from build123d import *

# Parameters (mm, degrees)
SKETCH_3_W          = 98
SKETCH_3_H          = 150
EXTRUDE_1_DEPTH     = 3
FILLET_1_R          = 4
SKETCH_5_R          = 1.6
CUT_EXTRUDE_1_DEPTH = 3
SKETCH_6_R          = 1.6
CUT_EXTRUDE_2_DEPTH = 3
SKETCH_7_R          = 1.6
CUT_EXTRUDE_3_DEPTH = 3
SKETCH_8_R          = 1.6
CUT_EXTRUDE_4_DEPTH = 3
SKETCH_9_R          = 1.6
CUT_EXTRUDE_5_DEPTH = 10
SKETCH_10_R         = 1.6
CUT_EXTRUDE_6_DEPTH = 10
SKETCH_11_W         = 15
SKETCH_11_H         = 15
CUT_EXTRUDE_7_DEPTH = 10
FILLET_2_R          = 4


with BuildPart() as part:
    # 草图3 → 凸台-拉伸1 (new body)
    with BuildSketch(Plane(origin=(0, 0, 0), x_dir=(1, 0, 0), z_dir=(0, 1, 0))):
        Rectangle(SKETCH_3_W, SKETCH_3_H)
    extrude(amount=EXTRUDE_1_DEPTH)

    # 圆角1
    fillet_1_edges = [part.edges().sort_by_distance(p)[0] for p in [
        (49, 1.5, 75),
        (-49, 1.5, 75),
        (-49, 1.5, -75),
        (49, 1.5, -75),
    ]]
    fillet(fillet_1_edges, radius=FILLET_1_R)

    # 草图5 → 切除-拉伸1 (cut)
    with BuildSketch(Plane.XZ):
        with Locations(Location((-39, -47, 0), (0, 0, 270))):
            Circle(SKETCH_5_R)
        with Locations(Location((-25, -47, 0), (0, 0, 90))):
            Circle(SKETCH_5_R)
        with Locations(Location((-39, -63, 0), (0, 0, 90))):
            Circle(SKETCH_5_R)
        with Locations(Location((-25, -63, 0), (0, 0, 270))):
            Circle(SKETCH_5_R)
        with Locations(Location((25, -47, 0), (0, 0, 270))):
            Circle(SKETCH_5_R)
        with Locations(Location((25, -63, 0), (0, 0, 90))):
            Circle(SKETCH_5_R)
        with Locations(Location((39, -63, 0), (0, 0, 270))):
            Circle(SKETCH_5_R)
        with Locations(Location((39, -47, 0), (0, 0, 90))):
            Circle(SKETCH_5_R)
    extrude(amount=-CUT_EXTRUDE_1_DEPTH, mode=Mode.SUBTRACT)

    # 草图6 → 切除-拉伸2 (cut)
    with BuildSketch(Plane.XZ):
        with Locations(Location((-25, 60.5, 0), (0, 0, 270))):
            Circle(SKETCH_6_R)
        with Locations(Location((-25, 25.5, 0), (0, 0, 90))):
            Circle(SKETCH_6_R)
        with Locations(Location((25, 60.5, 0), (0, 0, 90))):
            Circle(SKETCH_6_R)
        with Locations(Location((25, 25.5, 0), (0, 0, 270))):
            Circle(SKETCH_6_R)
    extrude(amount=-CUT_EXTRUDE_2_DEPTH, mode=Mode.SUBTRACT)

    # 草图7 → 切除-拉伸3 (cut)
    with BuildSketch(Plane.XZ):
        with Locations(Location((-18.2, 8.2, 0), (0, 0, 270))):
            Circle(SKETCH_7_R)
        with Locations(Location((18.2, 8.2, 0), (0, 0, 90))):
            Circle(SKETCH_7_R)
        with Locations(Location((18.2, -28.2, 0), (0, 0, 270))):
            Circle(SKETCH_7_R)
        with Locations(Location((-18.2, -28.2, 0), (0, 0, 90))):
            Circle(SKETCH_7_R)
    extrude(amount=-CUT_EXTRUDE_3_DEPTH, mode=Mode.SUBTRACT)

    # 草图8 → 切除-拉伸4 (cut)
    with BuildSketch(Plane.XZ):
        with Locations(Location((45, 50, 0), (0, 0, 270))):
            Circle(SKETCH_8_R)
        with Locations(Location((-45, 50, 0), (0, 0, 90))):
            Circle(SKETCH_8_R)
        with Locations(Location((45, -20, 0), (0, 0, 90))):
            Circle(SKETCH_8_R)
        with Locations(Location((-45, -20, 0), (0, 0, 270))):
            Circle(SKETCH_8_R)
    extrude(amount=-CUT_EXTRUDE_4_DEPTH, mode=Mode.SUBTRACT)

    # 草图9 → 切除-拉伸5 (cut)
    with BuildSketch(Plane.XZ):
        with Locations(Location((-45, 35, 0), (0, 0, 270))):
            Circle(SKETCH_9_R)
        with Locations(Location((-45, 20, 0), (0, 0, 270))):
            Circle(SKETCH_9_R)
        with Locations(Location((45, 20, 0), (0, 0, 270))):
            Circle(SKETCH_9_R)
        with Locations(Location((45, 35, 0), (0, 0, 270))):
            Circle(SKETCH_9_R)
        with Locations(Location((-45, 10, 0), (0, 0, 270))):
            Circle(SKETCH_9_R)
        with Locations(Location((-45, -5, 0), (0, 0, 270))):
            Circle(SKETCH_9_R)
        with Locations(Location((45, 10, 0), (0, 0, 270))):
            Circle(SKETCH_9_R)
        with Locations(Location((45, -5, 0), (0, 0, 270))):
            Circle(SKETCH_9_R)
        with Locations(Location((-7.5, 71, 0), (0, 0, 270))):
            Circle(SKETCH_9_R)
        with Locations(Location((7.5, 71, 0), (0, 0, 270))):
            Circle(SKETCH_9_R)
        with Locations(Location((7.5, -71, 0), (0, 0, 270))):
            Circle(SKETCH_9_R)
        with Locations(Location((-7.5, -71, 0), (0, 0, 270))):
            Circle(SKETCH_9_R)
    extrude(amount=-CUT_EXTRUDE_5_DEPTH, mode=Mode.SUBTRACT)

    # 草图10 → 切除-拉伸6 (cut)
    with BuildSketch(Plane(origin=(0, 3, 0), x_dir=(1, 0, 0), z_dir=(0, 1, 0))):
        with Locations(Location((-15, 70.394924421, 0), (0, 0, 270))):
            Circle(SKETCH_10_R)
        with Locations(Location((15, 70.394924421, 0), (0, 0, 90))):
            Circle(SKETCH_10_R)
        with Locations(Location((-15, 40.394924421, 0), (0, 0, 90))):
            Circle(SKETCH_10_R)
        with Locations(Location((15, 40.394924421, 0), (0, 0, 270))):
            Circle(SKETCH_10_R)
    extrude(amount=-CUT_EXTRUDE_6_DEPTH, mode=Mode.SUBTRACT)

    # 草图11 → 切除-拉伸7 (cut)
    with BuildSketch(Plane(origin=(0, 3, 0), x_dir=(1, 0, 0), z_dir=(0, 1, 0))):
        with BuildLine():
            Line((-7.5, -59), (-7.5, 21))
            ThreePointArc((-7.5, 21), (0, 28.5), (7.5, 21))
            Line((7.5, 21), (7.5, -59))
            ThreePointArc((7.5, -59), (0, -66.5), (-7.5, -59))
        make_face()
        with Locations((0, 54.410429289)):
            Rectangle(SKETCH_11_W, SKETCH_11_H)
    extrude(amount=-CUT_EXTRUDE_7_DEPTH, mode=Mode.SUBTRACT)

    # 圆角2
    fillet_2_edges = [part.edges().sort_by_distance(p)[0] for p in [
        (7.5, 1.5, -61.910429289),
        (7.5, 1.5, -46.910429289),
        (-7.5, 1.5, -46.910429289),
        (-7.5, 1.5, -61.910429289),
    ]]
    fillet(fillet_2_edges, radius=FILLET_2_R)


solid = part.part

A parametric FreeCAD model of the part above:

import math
import FreeCAD as App
import Part
import Sketcher
Q = App.Units.Quantity


def edges_at(feature, points):
    """Names of the edges that pass closest to the given points."""
    edges = feature.Shape.Edges
    near = lambda p: min(range(len(edges)), key=lambda i: edges[i].distToShape(Part.Vertex(*p))[0])
    return sorted({f"Edge{near(p) + 1}" for p in points})

doc = App.newDocument("Part")
body = doc.addObject("PartDesign::Body", "Body")

sketch1 = body.newObject("Sketcher::SketchObject", "Sketch")
sketch1.AttachmentSupport = (doc.getObject("XZ_Plane"), [""])
sketch1.MapMode = "FlatFace"
sketch1.addGeometry(Part.LineSegment(App.Vector(-49, -75, 0), App.Vector(-49, 75, 0)), False)
sketch1.addGeometry(Part.LineSegment(App.Vector(-49, 75, 0), App.Vector(49, 75, 0)), False)
sketch1.addGeometry(Part.LineSegment(App.Vector(49, 75, 0), App.Vector(49, -75, 0)), False)
sketch1.addGeometry(Part.LineSegment(App.Vector(49, -75, 0), App.Vector(-49, -75, 0)), False)
sketch1.addConstraint(Sketcher.Constraint("Coincident", 0, 2, 1, 1))
sketch1.addConstraint(Sketcher.Constraint("Coincident", 1, 2, 2, 1))
sketch1.addConstraint(Sketcher.Constraint("Coincident", 2, 2, 3, 1))
sketch1.addConstraint(Sketcher.Constraint("Coincident", 3, 2, 0, 1))
sketch1.addConstraint(Sketcher.Constraint("Vertical", 0))
sketch1.addConstraint(Sketcher.Constraint("Horizontal", 1))
sketch1.addConstraint(Sketcher.Constraint("Vertical", 2))
sketch1.addConstraint(Sketcher.Constraint("Horizontal", 3))
sketch1.addConstraint(Sketcher.Constraint("Symmetric", 0, 2, 2, 2, -1, 1))
sketch1.addConstraint(Sketcher.Constraint("DistanceX", 1, 1, 1, 2, Q("98 mm")))
sketch1.addConstraint(Sketcher.Constraint("DistanceY", 0, 1, 0, 2, Q("150 mm")))
pad1 = body.newObject("PartDesign::Pad", "Pad")
pad1.Profile = sketch1
pad1.Length = 3
pad1.Reversed = True
doc.recompute()

fillet = body.newObject("PartDesign::Fillet", "Fillet")
fillet.Base = (pad1, edges_at(pad1, [
    (49, 1.5, 75),
    (-49, 1.5, 75),
    (-49, 1.5, -75),
    (49, 1.5, -75),
]))
fillet.Radius = 4

sketch2 = body.newObject("Sketcher::SketchObject", "Sketch001")
sketch2.AttachmentSupport = (doc.getObject("XZ_Plane"), [""])
sketch2.MapMode = "FlatFace"
sketch2.addGeometry(Part.Circle(App.Vector(-39, -47, 0), App.Vector(0, 0, 1), 1.6), False)
sketch2.addGeometry(Part.Circle(App.Vector(-25, -47, 0), App.Vector(0, 0, 1), 1.6), False)
sketch2.addGeometry(Part.Circle(App.Vector(-39, -63, 0), App.Vector(0, 0, 1), 1.6), False)
sketch2.addGeometry(Part.Circle(App.Vector(-25, -63, 0), App.Vector(0, 0, 1), 1.6), False)
sketch2.addGeometry(Part.Circle(App.Vector(25, -47, 0), App.Vector(0, 0, 1), 1.6), False)
sketch2.addGeometry(Part.Circle(App.Vector(25, -63, 0), App.Vector(0, 0, 1), 1.6), False)
sketch2.addGeometry(Part.Circle(App.Vector(39, -63, 0), App.Vector(0, 0, 1), 1.6), False)
sketch2.addGeometry(Part.Circle(App.Vector(39, -47, 0), App.Vector(0, 0, 1), 1.6), False)
sketch2.addConstraint(Sketcher.Constraint("Equal", 0, 1))
sketch2.addConstraint(Sketcher.Constraint("Equal", 1, 2))
sketch2.addConstraint(Sketcher.Constraint("Equal", 2, 3))
sketch2.addConstraint(Sketcher.Constraint("Equal", 3, 4))
sketch2.addConstraint(Sketcher.Constraint("Equal", 4, 5))
sketch2.addConstraint(Sketcher.Constraint("Equal", 5, 6))
sketch2.addConstraint(Sketcher.Constraint("Equal", 6, 7))
sketch2.addConstraint(Sketcher.Constraint("Symmetric", 1, 3, 4, 3, -2))
sketch2.addConstraint(Sketcher.Constraint("Symmetric", 3, 3, 5, 3, -2))
sketch2.addConstraint(Sketcher.Constraint("Symmetric", 2, 3, 6, 3, -2))
sketch2.addConstraint(Sketcher.Constraint("Symmetric", 0, 3, 7, 3, -2))
sketch2.addConstraint(Sketcher.Constraint("Horizontal", 0, 3, 1, 3))
sketch2.addConstraint(Sketcher.Constraint("Horizontal", 2, 3, 3, 3))
sketch2.addConstraint(Sketcher.Constraint("Vertical", 0, 3, 2, 3))
sketch2.addConstraint(Sketcher.Constraint("Vertical", 1, 3, 3, 3))
sketch2.addConstraint(Sketcher.Constraint("Diameter", 0, Q("3.2 mm")))
sketch2.addConstraint(Sketcher.Constraint("DistanceX", 0, 3, -1, 1, Q("39 mm")))
sketch2.addConstraint(Sketcher.Constraint("DistanceY", 0, 3, -1, 1, Q("47 mm")))
sketch2.addConstraint(Sketcher.Constraint("DistanceX", 1, 3, -1, 1, Q("25 mm")))
sketch2.addConstraint(Sketcher.Constraint("DistanceY", 2, 3, -1, 1, Q("63 mm")))
pocket1 = body.newObject("PartDesign::Pocket", "Pocket")
pocket1.Profile = sketch2
pocket1.Length = 3

sketch3 = body.newObject("Sketcher::SketchObject", "Sketch002")
sketch3.AttachmentSupport = (doc.getObject("XZ_Plane"), [""])
sketch3.MapMode = "FlatFace"
sketch3.addGeometry(Part.Circle(App.Vector(-25, 60.5, 0), App.Vector(0, 0, 1), 1.6), False)
sketch3.addGeometry(Part.Circle(App.Vector(-25, 25.5, 0), App.Vector(0, 0, 1), 1.6), False)
sketch3.addGeometry(Part.Circle(App.Vector(25, 60.5, 0), App.Vector(0, 0, 1), 1.6), False)
sketch3.addGeometry(Part.Circle(App.Vector(25, 25.5, 0), App.Vector(0, 0, 1), 1.6), False)
sketch3.addConstraint(Sketcher.Constraint("Equal", 0, 1))
sketch3.addConstraint(Sketcher.Constraint("Equal", 1, 2))
sketch3.addConstraint(Sketcher.Constraint("Equal", 2, 3))
sketch3.addConstraint(Sketcher.Constraint("Symmetric", 0, 3, 2, 3, -2))
sketch3.addConstraint(Sketcher.Constraint("Symmetric", 1, 3, 3, 3, -2))
sketch3.addConstraint(Sketcher.Constraint("Vertical", 0, 3, 1, 3))
sketch3.addConstraint(Sketcher.Constraint("Diameter", 0, Q("3.2 mm")))
sketch3.addConstraint(Sketcher.Constraint("DistanceX", 0, 3, -1, 1, Q("25 mm")))
sketch3.addConstraint(Sketcher.Constraint("DistanceY", 1, 3, 0, 3, Q("35 mm")))
sketch3.addConstraint(Sketcher.Constraint("DistanceY", -1, 1, 0, 3, Q("60.5 mm")))
pocket2 = body.newObject("PartDesign::Pocket", "Pocket001")
pocket2.Profile = sketch3
pocket2.Length = 3

sketch4 = body.newObject("Sketcher::SketchObject", "Sketch003")
sketch4.AttachmentSupport = (doc.getObject("XZ_Plane"), [""])
sketch4.MapMode = "FlatFace"
sketch4.addGeometry(Part.Circle(App.Vector(-18.2, 8.2, 0), App.Vector(0, 0, 1), 1.6), False)
sketch4.addGeometry(Part.Circle(App.Vector(18.2, 8.2, 0), App.Vector(0, 0, 1), 1.6), False)
sketch4.addGeometry(Part.Circle(App.Vector(18.2, -28.2, 0), App.Vector(0, 0, 1), 1.6), False)
sketch4.addGeometry(Part.Circle(App.Vector(-18.2, -28.2, 0), App.Vector(0, 0, 1), 1.6), False)
sketch4.addConstraint(Sketcher.Constraint("Equal", 0, 1))
sketch4.addConstraint(Sketcher.Constraint("Equal", 1, 2))
sketch4.addConstraint(Sketcher.Constraint("Equal", 2, 3))
sketch4.addConstraint(Sketcher.Constraint("Symmetric", 0, 3, 1, 3, -2))
sketch4.addConstraint(Sketcher.Constraint("Symmetric", 2, 3, 3, 3, -2))
sketch4.addConstraint(Sketcher.Constraint("Vertical", 1, 3, 2, 3))
sketch4.addConstraint(Sketcher.Constraint("Diameter", 0, Q("3.2 mm")))
sketch4.addConstraint(Sketcher.Constraint("DistanceX", 0, 3, -1, 1, Q("18.2 mm")))
sketch4.addConstraint(Sketcher.Constraint("DistanceY", -1, 1, 0, 3, Q("8.2 mm")))
sketch4.addConstraint(Sketcher.Constraint("DistanceY", 2, 3, -1, 1, Q("28.2 mm")))
pocket3 = body.newObject("PartDesign::Pocket", "Pocket002")
pocket3.Profile = sketch4
pocket3.Length = 3

sketch5 = body.newObject("Sketcher::SketchObject", "Sketch004")
sketch5.AttachmentSupport = (doc.getObject("XZ_Plane"), [""])
sketch5.MapMode = "FlatFace"
sketch5.addGeometry(Part.Circle(App.Vector(45, 50, 0), App.Vector(0, 0, 1), 1.6), False)
sketch5.addGeometry(Part.Circle(App.Vector(-45, 50, 0), App.Vector(0, 0, 1), 1.6), False)
sketch5.addGeometry(Part.Circle(App.Vector(45, -20, 0), App.Vector(0, 0, 1), 1.6), False)
sketch5.addGeometry(Part.Circle(App.Vector(-45, -20, 0), App.Vector(0, 0, 1), 1.6), False)
sketch5.addConstraint(Sketcher.Constraint("Equal", 0, 1))
sketch5.addConstraint(Sketcher.Constraint("Equal", 1, 2))
sketch5.addConstraint(Sketcher.Constraint("Equal", 2, 3))
sketch5.addConstraint(Sketcher.Constraint("Symmetric", 0, 3, 1, 3, -2))
sketch5.addConstraint(Sketcher.Constraint("Symmetric", 2, 3, 3, 3, -2))
sketch5.addConstraint(Sketcher.Constraint("Vertical", 0, 3, 2, 3))
sketch5.addConstraint(Sketcher.Constraint("Diameter", 0, Q("3.2 mm")))
sketch5.addConstraint(Sketcher.Constraint("DistanceX", -1, 1, 0, 3, Q("45 mm")))
sketch5.addConstraint(Sketcher.Constraint("DistanceY", -1, 1, 0, 3, Q("50 mm")))
sketch5.addConstraint(Sketcher.Constraint("DistanceY", 2, 3, -1, 1, Q("20 mm")))
pocket4 = body.newObject("PartDesign::Pocket", "Pocket003")
pocket4.Profile = sketch5
pocket4.Length = 3

sketch6 = body.newObject("Sketcher::SketchObject", "Sketch005")
sketch6.AttachmentSupport = (doc.getObject("XZ_Plane"), [""])
sketch6.MapMode = "FlatFace"
sketch6.addGeometry(Part.Circle(App.Vector(-45, 35, 0), App.Vector(0, 0, 1), 1.6), False)
sketch6.addGeometry(Part.Circle(App.Vector(-45, 20, 0), App.Vector(0, 0, 1), 1.6), False)
sketch6.addGeometry(Part.Circle(App.Vector(45, 20, 0), App.Vector(0, 0, 1), 1.6), False)
sketch6.addGeometry(Part.Circle(App.Vector(45, 35, 0), App.Vector(0, 0, 1), 1.6), False)
sketch6.addGeometry(Part.Circle(App.Vector(-45, 10, 0), App.Vector(0, 0, 1), 1.6), False)
sketch6.addGeometry(Part.Circle(App.Vector(-45, -5, 0), App.Vector(0, 0, 1), 1.6), False)
sketch6.addGeometry(Part.Circle(App.Vector(45, 10, 0), App.Vector(0, 0, 1), 1.6), False)
sketch6.addGeometry(Part.Circle(App.Vector(45, -5, 0), App.Vector(0, 0, 1), 1.6), False)
sketch6.addGeometry(Part.Circle(App.Vector(-7.5, 71, 0), App.Vector(0, 0, 1), 1.6), False)
sketch6.addGeometry(Part.Circle(App.Vector(7.5, 71, 0), App.Vector(0, 0, 1), 1.6), False)
sketch6.addGeometry(Part.Circle(App.Vector(7.5, -71, 0), App.Vector(0, 0, 1), 1.6), False)
sketch6.addGeometry(Part.Circle(App.Vector(-7.5, -71, 0), App.Vector(0, 0, 1), 1.6), False)
sketch6.addConstraint(Sketcher.Constraint("Equal", 0, 1))
sketch6.addConstraint(Sketcher.Constraint("Equal", 1, 2))
sketch6.addConstraint(Sketcher.Constraint("Equal", 2, 3))
sketch6.addConstraint(Sketcher.Constraint("Equal", 3, 4))
sketch6.addConstraint(Sketcher.Constraint("Equal", 4, 5))
sketch6.addConstraint(Sketcher.Constraint("Equal", 5, 6))
sketch6.addConstraint(Sketcher.Constraint("Equal", 6, 7))
sketch6.addConstraint(Sketcher.Constraint("Equal", 7, 8))
sketch6.addConstraint(Sketcher.Constraint("Equal", 8, 9))
sketch6.addConstraint(Sketcher.Constraint("Equal", 9, 10))
sketch6.addConstraint(Sketcher.Constraint("Equal", 10, 11))
sketch6.addConstraint(Sketcher.Constraint("Symmetric", 8, 3, 10, 3, -1, 1))
sketch6.addConstraint(Sketcher.Constraint("Symmetric", 9, 3, 11, 3, -1, 1))
sketch6.addConstraint(Sketcher.Constraint("Symmetric", 1, 3, 2, 3, -2))
sketch6.addConstraint(Sketcher.Constraint("Symmetric", 0, 3, 3, 3, -2))
sketch6.addConstraint(Sketcher.Constraint("Symmetric", 4, 3, 6, 3, -2))
sketch6.addConstraint(Sketcher.Constraint("Symmetric", 5, 3, 7, 3, -2))
sketch6.addConstraint(Sketcher.Constraint("Symmetric", 8, 3, 9, 3, -2))
sketch6.addConstraint(Sketcher.Constraint("Vertical", 0, 3, 1, 3))
sketch6.addConstraint(Sketcher.Constraint("Vertical", 1, 3, 4, 3))
sketch6.addConstraint(Sketcher.Constraint("Vertical", 4, 3, 5, 3))
sketch6.addConstraint(Sketcher.Constraint("Diameter", 0, Q("3.2 mm")))
sketch6.addConstraint(Sketcher.Constraint("DistanceX", 0, 3, -1, 1, Q("45 mm")))
sketch6.addConstraint(Sketcher.Constraint("DistanceY", -1, 1, 0, 3, Q("35 mm")))
sketch6.addConstraint(Sketcher.Constraint("DistanceY", -1, 1, 1, 3, Q("20 mm")))
sketch6.addConstraint(Sketcher.Constraint("DistanceY", -1, 1, 4, 3, Q("10 mm")))
sketch6.addConstraint(Sketcher.Constraint("DistanceY", 5, 3, -1, 1, Q("5 mm")))
sketch6.addConstraint(Sketcher.Constraint("DistanceY", -1, 1, 8, 3, Q("71 mm")))
sketch6.addConstraint(Sketcher.Constraint("DistanceX", 8, 3, 9, 3, Q("15 mm")))
pocket5 = body.newObject("PartDesign::Pocket", "Pocket004")
pocket5.Profile = sketch6
pocket5.Length = 10

sketch7 = body.newObject("Sketcher::SketchObject", "Sketch006")
sketch7.AttachmentSupport = (doc.getObject("XZ_Plane"), [""])
sketch7.MapMode = "FlatFace"
sketch7.AttachmentOffset = App.Placement(App.Vector(0, 0, -3), App.Rotation())
sketch7.addGeometry(Part.Circle(App.Vector(-15, -70.394924, 0), App.Vector(0, 0, 1), 1.6), False)
sketch7.addGeometry(Part.Circle(App.Vector(15, -70.394924, 0), App.Vector(0, 0, 1), 1.6), False)
sketch7.addGeometry(Part.Circle(App.Vector(-15, -40.394924, 0), App.Vector(0, 0, 1), 1.6), False)
sketch7.addGeometry(Part.Circle(App.Vector(15, -40.394924, 0), App.Vector(0, 0, 1), 1.6), False)
sketch7.addConstraint(Sketcher.Constraint("Equal", 0, 1))
sketch7.addConstraint(Sketcher.Constraint("Equal", 1, 2))
sketch7.addConstraint(Sketcher.Constraint("Equal", 2, 3))
sketch7.addConstraint(Sketcher.Constraint("Symmetric", 0, 3, 1, 3, -2))
sketch7.addConstraint(Sketcher.Constraint("Symmetric", 2, 3, 3, 3, -2))
sketch7.addConstraint(Sketcher.Constraint("Vertical", 0, 3, 2, 3))
sketch7.addConstraint(Sketcher.Constraint("Diameter", 0, Q("3.2 mm")))
sketch7.addConstraint(Sketcher.Constraint("DistanceX", 0, 3, -1, 1, Q("15 mm")))
sketch7.addConstraint(Sketcher.Constraint("DistanceY", 0, 3, 2, 3, Q("30 mm")))
sketch7.addConstraint(Sketcher.Constraint("DistanceY", 0, 3, -1, 1, Q("70.394924 mm")))
pocket6 = body.newObject("PartDesign::Pocket", "Pocket005")
pocket6.Profile = sketch7
pocket6.Length = 10
pocket6.Reversed = True

sketch8 = body.newObject("Sketcher::SketchObject", "Sketch007")
sketch8.AttachmentSupport = (doc.getObject("XZ_Plane"), [""])
sketch8.MapMode = "FlatFace"
sketch8.AttachmentOffset = App.Placement(App.Vector(0, 0, -3), App.Rotation())
sketch8.addGeometry(Part.LineSegment(App.Vector(-7.5, -21, 0), App.Vector(-7.5, 59, 0)), False)
sketch8.addGeometry(Part.ArcOfCircle(Part.Circle(App.Vector(0, 59, 0), App.Vector(0, 0, 1), 7.5), math.radians(0), math.radians(180)), False)
sketch8.addGeometry(Part.LineSegment(App.Vector(7.5, 59, 0), App.Vector(7.5, -21, 0)), False)
sketch8.addGeometry(Part.ArcOfCircle(Part.Circle(App.Vector(0, -21, 0), App.Vector(0, 0, 1), 7.5), math.radians(180), math.radians(360)), False)
sketch8.addGeometry(Part.LineSegment(App.Vector(-7.5, -61.910429, 0), App.Vector(-7.5, -46.910429, 0)), False)
sketch8.addGeometry(Part.LineSegment(App.Vector(-7.5, -46.910429, 0), App.Vector(7.5, -46.910429, 0)), False)
sketch8.addGeometry(Part.LineSegment(App.Vector(7.5, -46.910429, 0), App.Vector(7.5, -61.910429, 0)), False)
sketch8.addGeometry(Part.LineSegment(App.Vector(7.5, -61.910429, 0), App.Vector(-7.5, -61.910429, 0)), False)
sketch8.addConstraint(Sketcher.Constraint("Tangent", 0, 2, 1, 2))
sketch8.addConstraint(Sketcher.Constraint("Tangent", 1, 1, 2, 1))
sketch8.addConstraint(Sketcher.Constraint("Tangent", 2, 2, 3, 2))
sketch8.addConstraint(Sketcher.Constraint("Tangent", 3, 1, 0, 1))
sketch8.addConstraint(Sketcher.Constraint("Coincident", 4, 2, 5, 1))
sketch8.addConstraint(Sketcher.Constraint("Coincident", 5, 2, 6, 1))
sketch8.addConstraint(Sketcher.Constraint("Coincident", 6, 2, 7, 1))
sketch8.addConstraint(Sketcher.Constraint("Coincident", 7, 2, 4, 1))
sketch8.addConstraint(Sketcher.Constraint("Vertical", 0))
sketch8.addConstraint(Sketcher.Constraint("Vertical", 2))
sketch8.addConstraint(Sketcher.Constraint("Vertical", 4))
sketch8.addConstraint(Sketcher.Constraint("Horizontal", 5))
sketch8.addConstraint(Sketcher.Constraint("Vertical", 6))
sketch8.addConstraint(Sketcher.Constraint("Horizontal", 7))
sketch8.addConstraint(Sketcher.Constraint("PointOnObject", 1, 3, -2))
sketch8.addConstraint(Sketcher.Constraint("Vertical", 3, 1, 4, 2))
sketch8.addConstraint(Sketcher.Constraint("Vertical", 2, 2, 5, 2))
sketch8.addConstraint(Sketcher.Constraint("Equal", 7, 4))
sketch8.addConstraint(Sketcher.Constraint("Radius", 1, Q("7.5 mm")))
sketch8.addConstraint(Sketcher.Constraint("DistanceY", 0, 1, 0, 2, Q("80 mm")))
sketch8.addConstraint(Sketcher.Constraint("DistanceY", -1, 1, 1, 3, Q("59 mm")))
sketch8.addConstraint(Sketcher.Constraint("DistanceY", 4, 2, -1, 1, Q("46.910429 mm")))
pocket7 = body.newObject("PartDesign::Pocket", "Pocket006")
pocket7.Profile = sketch8
pocket7.Length = 10
pocket7.Reversed = True
doc.recompute()

fillet2 = body.newObject("PartDesign::Fillet", "Fillet001")
fillet2.Base = (pocket7, edges_at(pocket7, [
    (7.5, 1.5, -61.91),
    (7.5, 1.5, -46.91),
    (-7.5, 1.5, -46.91),
    (-7.5, 1.5, -61.91),
]))
fillet2.Radius = 4

doc.recompute()
